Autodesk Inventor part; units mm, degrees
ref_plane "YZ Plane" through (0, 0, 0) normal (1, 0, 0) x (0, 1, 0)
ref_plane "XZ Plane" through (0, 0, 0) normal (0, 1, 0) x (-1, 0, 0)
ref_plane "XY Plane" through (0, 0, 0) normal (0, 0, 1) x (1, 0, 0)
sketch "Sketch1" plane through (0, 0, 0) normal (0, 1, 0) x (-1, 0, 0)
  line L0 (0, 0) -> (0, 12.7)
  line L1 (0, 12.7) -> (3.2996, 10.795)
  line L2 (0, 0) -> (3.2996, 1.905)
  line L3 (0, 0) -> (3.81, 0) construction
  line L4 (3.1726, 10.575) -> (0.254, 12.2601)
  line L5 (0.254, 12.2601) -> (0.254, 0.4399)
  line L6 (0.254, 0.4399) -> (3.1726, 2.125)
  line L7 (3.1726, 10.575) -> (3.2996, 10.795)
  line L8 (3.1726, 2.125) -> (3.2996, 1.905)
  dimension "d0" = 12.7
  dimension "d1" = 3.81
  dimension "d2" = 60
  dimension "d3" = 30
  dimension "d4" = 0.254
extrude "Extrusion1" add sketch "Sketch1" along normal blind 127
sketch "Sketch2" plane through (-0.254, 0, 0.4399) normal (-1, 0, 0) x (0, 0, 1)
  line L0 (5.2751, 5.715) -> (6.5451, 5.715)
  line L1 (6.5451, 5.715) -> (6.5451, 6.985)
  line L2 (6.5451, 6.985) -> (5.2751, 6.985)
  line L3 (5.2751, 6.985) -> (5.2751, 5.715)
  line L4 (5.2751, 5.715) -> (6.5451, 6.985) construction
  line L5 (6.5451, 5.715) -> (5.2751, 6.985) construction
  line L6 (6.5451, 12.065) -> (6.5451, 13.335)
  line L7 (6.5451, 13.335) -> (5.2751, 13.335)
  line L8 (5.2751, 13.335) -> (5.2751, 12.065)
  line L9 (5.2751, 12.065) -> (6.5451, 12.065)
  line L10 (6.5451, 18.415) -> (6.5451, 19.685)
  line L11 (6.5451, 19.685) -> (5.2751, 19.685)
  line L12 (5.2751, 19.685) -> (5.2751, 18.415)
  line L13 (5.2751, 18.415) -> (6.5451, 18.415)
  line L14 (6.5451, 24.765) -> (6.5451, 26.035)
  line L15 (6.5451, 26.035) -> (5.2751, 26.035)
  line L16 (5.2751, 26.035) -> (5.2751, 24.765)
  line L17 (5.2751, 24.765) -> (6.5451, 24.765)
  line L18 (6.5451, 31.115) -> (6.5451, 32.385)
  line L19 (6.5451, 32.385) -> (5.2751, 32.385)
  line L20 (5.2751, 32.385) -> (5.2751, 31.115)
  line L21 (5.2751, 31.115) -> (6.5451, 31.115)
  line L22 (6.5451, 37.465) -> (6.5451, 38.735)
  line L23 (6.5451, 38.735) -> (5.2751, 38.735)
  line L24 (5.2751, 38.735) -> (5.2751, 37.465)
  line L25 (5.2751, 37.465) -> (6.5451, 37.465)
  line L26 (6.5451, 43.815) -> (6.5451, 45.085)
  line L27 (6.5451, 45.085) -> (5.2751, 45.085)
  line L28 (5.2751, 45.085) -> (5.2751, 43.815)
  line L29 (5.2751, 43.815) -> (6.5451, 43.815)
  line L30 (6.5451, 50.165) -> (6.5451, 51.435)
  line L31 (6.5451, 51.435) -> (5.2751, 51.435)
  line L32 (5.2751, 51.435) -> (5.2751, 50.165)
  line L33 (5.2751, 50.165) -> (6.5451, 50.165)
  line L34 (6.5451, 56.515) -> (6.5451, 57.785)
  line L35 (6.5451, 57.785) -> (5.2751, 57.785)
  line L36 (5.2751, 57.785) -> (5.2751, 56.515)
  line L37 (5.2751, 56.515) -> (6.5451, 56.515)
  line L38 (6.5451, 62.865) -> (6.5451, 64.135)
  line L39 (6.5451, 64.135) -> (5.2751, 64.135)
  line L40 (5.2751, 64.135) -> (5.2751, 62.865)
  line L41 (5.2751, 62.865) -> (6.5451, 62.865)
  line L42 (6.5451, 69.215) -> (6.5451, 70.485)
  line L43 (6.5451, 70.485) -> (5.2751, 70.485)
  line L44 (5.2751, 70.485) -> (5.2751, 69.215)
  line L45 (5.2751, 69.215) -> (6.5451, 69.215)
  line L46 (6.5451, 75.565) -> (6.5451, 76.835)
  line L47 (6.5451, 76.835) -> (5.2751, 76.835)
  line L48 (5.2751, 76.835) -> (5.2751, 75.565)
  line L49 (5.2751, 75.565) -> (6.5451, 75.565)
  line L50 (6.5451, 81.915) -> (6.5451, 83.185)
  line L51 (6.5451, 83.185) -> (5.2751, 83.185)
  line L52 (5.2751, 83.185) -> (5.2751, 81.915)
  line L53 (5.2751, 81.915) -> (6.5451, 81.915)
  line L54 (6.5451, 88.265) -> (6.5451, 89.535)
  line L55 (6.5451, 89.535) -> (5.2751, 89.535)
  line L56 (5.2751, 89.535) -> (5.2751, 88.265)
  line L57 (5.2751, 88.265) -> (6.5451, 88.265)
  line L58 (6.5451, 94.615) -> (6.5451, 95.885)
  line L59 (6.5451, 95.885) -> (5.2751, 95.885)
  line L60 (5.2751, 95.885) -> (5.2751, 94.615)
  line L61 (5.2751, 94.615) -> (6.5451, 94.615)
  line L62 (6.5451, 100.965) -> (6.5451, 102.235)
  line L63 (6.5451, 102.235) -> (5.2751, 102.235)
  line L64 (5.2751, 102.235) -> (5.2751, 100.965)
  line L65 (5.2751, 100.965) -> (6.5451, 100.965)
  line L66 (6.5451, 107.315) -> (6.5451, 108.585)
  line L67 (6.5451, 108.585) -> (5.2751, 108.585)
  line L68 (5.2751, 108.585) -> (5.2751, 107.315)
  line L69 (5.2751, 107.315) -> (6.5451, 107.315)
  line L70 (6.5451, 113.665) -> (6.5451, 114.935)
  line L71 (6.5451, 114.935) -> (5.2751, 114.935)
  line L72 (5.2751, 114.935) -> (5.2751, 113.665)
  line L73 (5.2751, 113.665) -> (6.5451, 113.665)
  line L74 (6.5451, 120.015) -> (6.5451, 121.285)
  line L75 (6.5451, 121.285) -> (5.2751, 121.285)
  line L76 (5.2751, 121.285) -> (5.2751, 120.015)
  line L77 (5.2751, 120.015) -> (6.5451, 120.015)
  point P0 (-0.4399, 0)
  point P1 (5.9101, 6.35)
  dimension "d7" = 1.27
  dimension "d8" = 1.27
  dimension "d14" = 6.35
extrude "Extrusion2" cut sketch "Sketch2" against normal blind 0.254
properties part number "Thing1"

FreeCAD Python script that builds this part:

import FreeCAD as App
import Part
import Sketcher

V = App.Vector
Q = App.Units.Quantity

doc = App.newDocument("Part")
body = doc.addObject("PartDesign::Body", "Body")

# Sketch on XZ plane
sketch1 = doc.addObject("Sketcher::SketchObject", "Sketch")
body.addObject(sketch1)
sketch1.AttachmentSupport = (doc.XZ_Plane, [""])
sketch1.MapMode = "FlatFace"
sketch1.addGeometry([
    Part.LineSegment(V(0, 12.7, 0), V(0, 0, 0)),  # 0
    Part.LineSegment(V(0, 0, 0), V(-3.3, 1.91, 0)),  # 1
    Part.LineSegment(V(-3.3, 1.91, 0), V(-3.17, 2.12, 0)),  # 2
    Part.LineSegment(V(-3.17, 2.12, 0), V(-0.25, 0.44, 0)),  # 3
    Part.LineSegment(V(-0.25, 0.44, 0), V(-0.25, 12.26, 0)),  # 4
    Part.LineSegment(V(-0.25, 12.26, 0), V(-3.17, 10.57, 0)),  # 5
    Part.LineSegment(V(-3.17, 10.57, 0), V(-3.3, 10.79, 0)),  # 6
    Part.LineSegment(V(-3.3, 10.79, 0), V(0, 12.7, 0)),  # 7
], False)
sketch1.addConstraint([
    Sketcher.Constraint("Coincident", 0, 2, 1, 1),
    Sketcher.Constraint("Coincident", 1, 2, 2, 1),
    Sketcher.Constraint("Coincident", 2, 2, 3, 1),
    Sketcher.Constraint("Coincident", 3, 2, 4, 1),
    Sketcher.Constraint("Coincident", 4, 2, 5, 1),
    Sketcher.Constraint("Coincident", 5, 2, 6, 1),
    Sketcher.Constraint("Coincident", 6, 2, 7, 1),
    Sketcher.Constraint("Coincident", 7, 2, 0, 1),
    Sketcher.Constraint("Vertical", 0),
    Sketcher.Constraint("Vertical", 4),
    Sketcher.Constraint("Coincident", 0, 2, -1, 1),
    Sketcher.Constraint("Perpendicular", 1, 2),
    Sketcher.Constraint("Perpendicular", 2, 3),
    Sketcher.Constraint("Perpendicular", 5, 6),
    Sketcher.Constraint("Perpendicular", 6, 7),
    Sketcher.Constraint("Vertical", 2, 2, 5, 2),
    Sketcher.Constraint("Vertical", 1, 2, 6, 2),
    Sketcher.Constraint("Equal", 3, 5),
    Sketcher.Constraint("DistanceY", 0, 2, 0, 1, Q("0.5 in")),
    Sketcher.Constraint("Angle", 7, Q("29.9997 deg")),
    Sketcher.Constraint("Distance", 1, Q("0.15 in")),
    Sketcher.Constraint("Distance", 2, Q("0.01 in")),
    Sketcher.Constraint("DistanceX", 3, 2, -1, 1, Q("0.01 in")),
])
pad1 = doc.addObject("PartDesign::Pad", "Pad")
body.addObject(pad1)
pad1.Profile = sketch1
pad1.Length = Q("5 in")
pad1.Reversed = True

# Sketch on YZ plane
sketch2 = doc.addObject("Sketcher::SketchObject", "Sketch001")
body.addObject(sketch2)
sketch2.AttachmentSupport = (doc.YZ_Plane, [""])
sketch2.MapMode = "FlatFace"
sketch2.AttachmentOffset = App.Placement(V(0, 0, -0.01 * 25.4), App.Rotation())
sketch2.addGeometry([
    Part.LineSegment(V(7, 5.7, 0), V(5.7, 5.7, 0)),  # 0
    Part.LineSegment(V(5.7, 5.7, 0), V(5.7, 7, 0)),  # 1
    Part.LineSegment(V(5.7, 7, 0), V(7, 7, 0)),  # 2
    Part.LineSegment(V(7, 7, 0), V(7, 5.7, 0)),  # 3
    Part.LineSegment(V(12.1, 5.7, 0), V(12.1, 7, 0)),  # 4
    Part.LineSegment(V(12.1, 7, 0), V(13.3, 7, 0)),  # 5
    Part.LineSegment(V(13.3, 7, 0), V(13.3, 5.7, 0)),  # 6
    Part.LineSegment(V(13.3, 5.7, 0), V(12.1, 5.7, 0)),  # 7
    Part.LineSegment(V(18.4, 5.7, 0), V(18.4, 7, 0)),  # 8
    Part.LineSegment(V(18.4, 7, 0), V(19.7, 7, 0)),  # 9
    Part.LineSegment(V(19.7, 7, 0), V(19.7, 5.7, 0)),  # 10
    Part.LineSegment(V(19.7, 5.7, 0), V(18.4, 5.7, 0)),  # 11
    Part.LineSegment(V(24.8, 5.7, 0), V(24.8, 7, 0)),  # 12
    Part.LineSegment(V(24.8, 7, 0), V(26, 7, 0)),  # 13
    Part.LineSegment(V(26, 7, 0), V(26, 5.7, 0)),  # 14
    Part.LineSegment(V(26, 5.7, 0), V(24.8, 5.7, 0)),  # 15
    Part.LineSegment(V(31.1, 5.7, 0), V(31.1, 7, 0)),  # 16
    Part.LineSegment(V(31.1, 7, 0), V(32.4, 7, 0)),  # 17
    Part.LineSegment(V(32.4, 7, 0), V(32.4, 5.7, 0)),  # 18
    Part.LineSegment(V(32.4, 5.7, 0), V(31.1, 5.7, 0)),  # 19
    Part.LineSegment(V(37.5, 5.7, 0), V(37.5, 7, 0)),  # 20
    Part.LineSegment(V(37.5, 7, 0), V(38.7, 7, 0)),  # 21
    Part.LineSegment(V(38.7, 7, 0), V(38.7, 5.7, 0)),  # 22
    Part.LineSegment(V(38.7, 5.7, 0), V(37.5, 5.7, 0)),  # 23
    Part.LineSegment(V(43.8, 5.7, 0), V(43.8, 7, 0)),  # 24
    Part.LineSegment(V(43.8, 7, 0), V(45.1, 7, 0)),  # 25
    Part.LineSegment(V(45.1, 7, 0), V(45.1, 5.7, 0)),  # 26
    Part.LineSegment(V(45.1, 5.7, 0), V(43.8, 5.7, 0)),  # 27
    Part.LineSegment(V(50.2, 5.7, 0), V(50.2, 7, 0)),  # 28
    Part.LineSegment(V(50.2, 7, 0), V(51.4, 7, 0)),  # 29
    Part.LineSegment(V(51.4, 7, 0), V(51.4, 5.7, 0)),  # 30
    Part.LineSegment(V(51.4, 5.7, 0), V(50.2, 5.7, 0)),  # 31
    Part.LineSegment(V(56.5, 5.7, 0), V(56.5, 7, 0)),  # 32
    Part.LineSegment(V(56.5, 7, 0), V(57.8, 7, 0)),  # 33
    Part.LineSegment(V(57.8, 7, 0), V(57.8, 5.7, 0)),  # 34
    Part.LineSegment(V(57.8, 5.7, 0), V(56.5, 5.7, 0)),  # 35
    Part.LineSegment(V(62.9, 5.7, 0), V(62.9, 7, 0)),  # 36
    Part.LineSegment(V(62.9, 7, 0), V(64.1, 7, 0)),  # 37
    Part.LineSegment(V(64.1, 7, 0), V(64.1, 5.7, 0)),  # 38
    Part.LineSegment(V(64.1, 5.7, 0), V(62.9, 5.7, 0)),  # 39
    Part.LineSegment(V(69.2, 5.7, 0), V(69.2, 7, 0)),  # 40
    Part.LineSegment(V(69.2, 7, 0), V(70.5, 7, 0)),  # 41
    Part.LineSegment(V(70.5, 7, 0), V(70.5, 5.7, 0)),  # 42
    Part.LineSegment(V(70.5, 5.7, 0), V(69.2, 5.7, 0)),  # 43
    Part.LineSegment(V(75.6, 5.7, 0), V(75.6, 7, 0)),  # 44
    Part.LineSegment(V(75.6, 7, 0), V(76.8, 7, 0)),  # 45
    Part.LineSegment(V(76.8, 7, 0), V(76.8, 5.7, 0)),  # 46
    Part.LineSegment(V(76.8, 5.7, 0), V(75.6, 5.7, 0)),  # 47
    Part.LineSegment(V(81.9, 5.7, 0), V(81.9, 7, 0)),  # 48
    Part.LineSegment(V(81.9, 7, 0), V(83.2, 7, 0)),  # 49
    Part.LineSegment(V(83.2, 7, 0), V(83.2, 5.7, 0)),  # 50
    Part.LineSegment(V(83.2, 5.7, 0), V(81.9, 5.7, 0)),  # 51
    Part.LineSegment(V(88.3, 5.7, 0), V(88.3, 7, 0)),  # 52
    Part.LineSegment(V(88.3, 7, 0), V(89.5, 7, 0)),  # 53
    Part.LineSegment(V(89.5, 7, 0), V(89.5, 5.7, 0)),  # 54
    Part.LineSegment(V(89.5, 5.7, 0), V(88.3, 5.7, 0)),  # 55
    Part.LineSegment(V(94.6, 5.7, 0), V(94.6, 7, 0)),  # 56
    Part.LineSegment(V(94.6, 7, 0), V(95.9, 7, 0)),  # 57
    Part.LineSegment(V(95.9, 7, 0), V(95.9, 5.7, 0)),  # 58
    Part.LineSegment(V(95.9, 5.7, 0), V(94.6, 5.7, 0)),  # 59
    Part.LineSegment(V(101, 5.7, 0), V(101, 7, 0)),  # 60
    Part.LineSegment(V(101, 7, 0), V(102.2, 7, 0)),  # 61
    Part.LineSegment(V(102.2, 7, 0), V(102.2, 5.7, 0)),  # 62
    Part.LineSegment(V(102.2, 5.7, 0), V(101, 5.7, 0)),  # 63
    Part.LineSegment(V(107.3, 5.7, 0), V(107.3, 7, 0)),  # 64
    Part.LineSegment(V(107.3, 7, 0), V(108.6, 7, 0)),  # 65
    Part.LineSegment(V(108.6, 7, 0), V(108.6, 5.7, 0)),  # 66
    Part.LineSegment(V(108.6, 5.7, 0), V(107.3, 5.7, 0)),  # 67
    Part.LineSegment(V(113.7, 5.7, 0), V(113.7, 7, 0)),  # 68
    Part.LineSegment(V(113.7, 7, 0), V(114.9, 7, 0)),  # 69
    Part.LineSegment(V(114.9, 7, 0), V(114.9, 5.7, 0)),  # 70
    Part.LineSegment(V(114.9, 5.7, 0), V(113.7, 5.7, 0)),  # 71
    Part.LineSegment(V(120, 5.7, 0), V(120, 7, 0)),  # 72
    Part.LineSegment(V(120, 7, 0), V(121.3, 7, 0)),  # 73
    Part.LineSegment(V(121.3, 7, 0), V(121.3, 5.7, 0)),  # 74
    Part.LineSegment(V(121.3, 5.7, 0), V(120, 5.7, 0)),  # 75
], False)
sketch2.addConstraint([
    Sketcher.Constraint("Coincident", 0, 2, 1, 1),
    Sketcher.Constraint("Coincident", 1, 2, 2, 1),
    Sketcher.Constraint("Coincident", 2, 2, 3, 1),
    Sketcher.Constraint("Coincident", 3, 2, 0, 1),
    Sketcher.Constraint("Coincident", 4, 2, 5, 1),
    Sketcher.Constraint("Coincident", 5, 2, 6, 1),
    Sketcher.Constraint("Coincident", 6, 2, 7, 1),
    Sketcher.Constraint("Coincident", 7, 2, 4, 1),
    Sketcher.Constraint("Coincident", 8, 2, 9, 1),
    Sketcher.Constraint("Coincident", 9, 2, 10, 1),
    Sketcher.Constraint("Coincident", 10, 2, 11, 1),
    Sketcher.Constraint("Coincident", 11, 2, 8, 1),
    Sketcher.Constraint("Coincident", 12, 2, 13, 1),
    Sketcher.Constraint("Coincident", 13, 2, 14, 1),
    Sketcher.Constraint("Coincident", 14, 2, 15, 1),
    Sketcher.Constraint("Coincident", 15, 2, 12, 1),
    Sketcher.Constraint("Coincident", 16, 2, 17, 1),
    Sketcher.Constraint("Coincident", 17, 2, 18, 1),
    Sketcher.Constraint("Coincident", 18, 2, 19, 1),
    Sketcher.Constraint("Coincident", 19, 2, 16, 1),
    Sketcher.Constraint("Coincident", 20, 2, 21, 1),
    Sketcher.Constraint("Coincident", 21, 2, 22, 1),
    Sketcher.Constraint("Coincident", 22, 2, 23, 1),
    Sketcher.Constraint("Coincident", 23, 2, 20, 1),
    Sketcher.Constraint("Coincident", 24, 2, 25, 1),
    Sketcher.Constraint("Coincident", 25, 2, 26, 1),
    Sketcher.Constraint("Coincident", 26, 2, 27, 1),
    Sketcher.Constraint("Coincident", 27, 2, 24, 1),
    Sketcher.Constraint("Coincident", 28, 2, 29, 1),
    Sketcher.Constraint("Coincident", 29, 2, 30, 1),
    Sketcher.Constraint("Coincident", 30, 2, 31, 1),
    Sketcher.Constraint("Coincident", 31, 2, 28, 1),
    Sketcher.Constraint("Coincident", 32, 2, 33, 1),
    Sketcher.Constraint("Coincident", 33, 2, 34, 1),
    Sketcher.Constraint("Coincident", 34, 2, 35, 1),
    Sketcher.Constraint("Coincident", 35, 2, 32, 1),
    Sketcher.Constraint("Coincident", 36, 2, 37, 1),
    Sketcher.Constraint("Coincident", 37, 2, 38, 1),
    Sketcher.Constraint("Coincident", 38, 2, 39, 1),
    Sketcher.Constraint("Coincident", 39, 2, 36, 1),
    Sketcher.Constraint("Coincident", 40, 2, 41, 1),
    Sketcher.Constraint("Coincident", 41, 2, 42, 1),
    Sketcher.Constraint("Coincident", 42, 2, 43, 1),
    Sketcher.Constraint("Coincident", 43, 2, 40, 1),
    Sketcher.Constraint("Coincident", 44, 2, 45, 1),
    Sketcher.Constraint("Coincident", 45, 2, 46, 1),
    Sketcher.Constraint("Coincident", 46, 2, 47, 1),
    Sketcher.Constraint("Coincident", 47, 2, 44, 1),
    Sketcher.Constraint("Coincident", 48, 2, 49, 1),
    Sketcher.Constraint("Coincident", 49, 2, 50, 1),
    Sketcher.Constraint("Coincident", 50, 2, 51, 1),
    Sketcher.Constraint("Coincident", 51, 2, 48, 1),
    Sketcher.Constraint("Coincident", 52, 2, 53, 1),
    Sketcher.Constraint("Coincident", 53, 2, 54, 1),
    Sketcher.Constraint("Coincident", 54, 2, 55, 1),
    Sketcher.Constraint("Coincident", 55, 2, 52, 1),
    Sketcher.Constraint("Coincident", 56, 2, 57, 1),
    Sketcher.Constraint("Coincident", 57, 2, 58, 1),
    Sketcher.Constraint("Coincident", 58, 2, 59, 1),
    Sketcher.Constraint("Coincident", 59, 2, 56, 1),
    Sketcher.Constraint("Coincident", 60, 2, 61, 1),
    Sketcher.Constraint("Coincident", 61, 2, 62, 1),
    Sketcher.Constraint("Coincident", 62, 2, 63, 1),
    Sketcher.Constraint("Coincident", 63, 2, 60, 1),
    Sketcher.Constraint("Coincident", 64, 2, 65, 1),
    Sketcher.Constraint("Coincident", 65, 2, 66, 1),
    Sketcher.Constraint("Coincident", 66, 2, 67, 1),
    Sketcher.Constraint("Coincident", 67, 2, 64, 1),
    Sketcher.Constraint("Coincident", 68, 2, 69, 1),
    Sketcher.Constraint("Coincident", 69, 2, 70, 1),
    Sketcher.Constraint("Coincident", 70, 2, 71, 1),
    Sketcher.Constraint("Coincident", 71, 2, 68, 1),
    Sketcher.Constraint("Coincident", 72, 2, 73, 1),
    Sketcher.Constraint("Coincident", 73, 2, 74, 1),
    Sketcher.Constraint("Coincident", 74, 2, 75, 1),
    Sketcher.Constraint("Coincident", 75, 2, 72, 1),
    Sketcher.Constraint("Horizontal", 0),
    Sketcher.Constraint("Vertical", 1),
    Sketcher.Constraint("Horizontal", 2),
    Sketcher.Constraint("Vertical", 3),
    Sketcher.Constraint("Vertical", 4),
    Sketcher.Constraint("Horizontal", 5),
    Sketcher.Constraint("Vertical", 6),
    Sketcher.Constraint("Horizontal", 7),
    Sketcher.Constraint("Vertical", 8),
    Sketcher.Constraint("Horizontal", 9),
    Sketcher.Constraint("Vertical", 10),
    Sketcher.Constraint("Horizontal", 11),
    Sketcher.Constraint("Vertical", 12),
    Sketcher.Constraint("Horizontal", 13),
    Sketcher.Constraint("Vertical", 14),
    Sketcher.Constraint("Horizontal", 15),
    Sketcher.Constraint("Vertical", 16),
    Sketcher.Constraint("Horizontal", 17),
    Sketcher.Constraint("Vertical", 18),
    Sketcher.Constraint("Horizontal", 19),
    Sketcher.Constraint("Vertical", 20),
    Sketcher.Constraint("Horizontal", 21),
    Sketcher.Constraint("Vertical", 22),
    Sketcher.Constraint("Horizontal", 23),
    Sketcher.Constraint("Vertical", 24),
    Sketcher.Constraint("Horizontal", 25),
    Sketcher.Constraint("Vertical", 26),
    Sketcher.Constraint("Horizontal", 27),
    Sketcher.Constraint("Vertical", 28),
    Sketcher.Constraint("Horizontal", 29),
    Sketcher.Constraint("Vertical", 30),
    Sketcher.Constraint("Horizontal", 31),
    Sketcher.Constraint("Vertical", 32),
    Sketcher.Constraint("Horizontal", 33),
    Sketcher.Constraint("Vertical", 34),
    Sketcher.Constraint("Horizontal", 35),
    Sketcher.Constraint("Vertical", 36),
    Sketcher.Constraint("Horizontal", 37),
    Sketcher.Constraint("Vertical", 38),
    Sketcher.Constraint("Horizontal", 39),
    Sketcher.Constraint("Vertical", 40),
    Sketcher.Constraint("Horizontal", 41),
    Sketcher.Constraint("Vertical", 42),
    Sketcher.Constraint("Horizontal", 43),
    Sketcher.Constraint("Vertical", 44),
    Sketcher.Constraint("Horizontal", 45),
    Sketcher.Constraint("Vertical", 46),
    Sketcher.Constraint("Horizontal", 47),
    Sketcher.Constraint("Vertical", 48),
    Sketcher.Constraint("Horizontal", 49),
    Sketcher.Constraint("Vertical", 50),
    Sketcher.Constraint("Horizontal", 51),
    Sketcher.Constraint("Vertical", 52),
    Sketcher.Constraint("Horizontal", 53),
    Sketcher.Constraint("Vertical", 54),
    Sketcher.Constraint("Horizontal", 55),
    Sketcher.Constraint("Vertical", 56),
    Sketcher.Constraint("Horizontal", 57),
    Sketcher.Constraint("Vertical", 58),
    Sketcher.Constraint("Horizontal", 59),
    Sketcher.Constraint("Vertical", 60),
    Sketcher.Constraint("Horizontal", 61),
    Sketcher.Constraint("Vertical", 62),
    Sketcher.Constraint("Horizontal", 63),
    Sketcher.Constraint("Vertical", 64),
    Sketcher.Constraint("Horizontal", 65),
    Sketcher.Constraint("Vertical", 66),
    Sketcher.Constraint("Horizontal", 67),
    Sketcher.Constraint("Vertical", 68),
    Sketcher.Constraint("Horizontal", 69),
    Sketcher.Constraint("Vertical", 70),
    Sketcher.Constraint("Horizontal", 71),
    Sketcher.Constraint("Vertical", 72),
    Sketcher.Constraint("Horizontal", 73),
    Sketcher.Constraint("Vertical", 74),
    Sketcher.Constraint("Horizontal", 75),
    Sketcher.Constraint("Horizontal", 2, 2, 4, 2),
    Sketcher.Constraint("Horizontal", 3, 2, 6, 2),
    Sketcher.Constraint("Horizontal", 5, 2, 8, 2),
    Sketcher.Constraint("Horizontal", 7, 2, 10, 2),
    Sketcher.Constraint("Horizontal", 9, 2, 12, 2),
    Sketcher.Constraint("Horizontal", 11, 2, 14, 2),
    Sketcher.Constraint("Horizontal", 13, 2, 16, 2),
    Sketcher.Constraint("Horizontal", 15, 2, 18, 2),
    Sketcher.Constraint("Horizontal", 17, 2, 20, 2),
    Sketcher.Constraint("Horizontal", 19, 2, 22, 2),
    Sketcher.Constraint("Horizontal", 21, 2, 24, 2),
    Sketcher.Constraint("Horizontal", 23, 2, 26, 2),
    Sketcher.Constraint("Horizontal", 25, 2, 28, 2),
    Sketcher.Constraint("Horizontal", 27, 2, 30, 2),
    Sketcher.Constraint("Horizontal", 29, 2, 32, 2),
    Sketcher.Constraint("Horizontal", 31, 2, 34, 2),
    Sketcher.Constraint("Horizontal", 33, 2, 36, 2),
    Sketcher.Constraint("Horizontal", 35, 2, 38, 2),
    Sketcher.Constraint("Horizontal", 37, 2, 40, 2),
    Sketcher.Constraint("Horizontal", 39, 2, 42, 2),
    Sketcher.Constraint("Horizontal", 41, 2, 44, 2),
    Sketcher.Constraint("Horizontal", 43, 2, 46, 2),
    Sketcher.Constraint("Horizontal", 45, 2, 48, 2),
    Sketcher.Constraint("Horizontal", 47, 2, 50, 2),
    Sketcher.Constraint("Horizontal", 49, 2, 52, 2),
    Sketcher.Constraint("Horizontal", 51, 2, 54, 2),
    Sketcher.Constraint("Horizontal", 53, 2, 56, 2),
    Sketcher.Constraint("Horizontal", 55, 2, 58, 2),
    Sketcher.Constraint("Horizontal", 57, 2, 60, 2),
    Sketcher.Constraint("Horizontal", 59, 2, 62, 2),
    Sketcher.Constraint("Horizontal", 61, 2, 64, 2),
    Sketcher.Constraint("Horizontal", 63, 2, 66, 2),
    Sketcher.Constraint("Horizontal", 65, 2, 68, 2),
    Sketcher.Constraint("Horizontal", 67, 2, 70, 2),
    Sketcher.Constraint("Horizontal", 69, 2, 72, 2),
    Sketcher.Constraint("Horizontal", 71, 2, 74, 2),
    Sketcher.Constraint("Equal", 2, 5),
    Sketcher.Constraint("Equal", 7, 9),
    Sketcher.Constraint("Equal", 11, 13),
    Sketcher.Constraint("Equal", 15, 17),
    Sketcher.Constraint("Equal", 19, 21),
    Sketcher.Constraint("Equal", 23, 25),
    Sketcher.Constraint("Equal", 27, 29),
    Sketcher.Constraint("Equal", 31, 33),
    Sketcher.Constraint("Equal", 35, 37),
    Sketcher.Constraint("Equal", 39, 41),
    Sketcher.Constraint("Equal", 43, 45),
    Sketcher.Constraint("Equal", 47, 49),
    Sketcher.Constraint("Equal", 51, 53),
    Sketcher.Constraint("Equal", 55, 57),
    Sketcher.Constraint("Equal", 59, 61),
    Sketcher.Constraint("Equal", 63, 65),
    Sketcher.Constraint("Equal", 67, 69),
    Sketcher.Constraint("Equal", 71, 73),
    Sketcher.Constraint("Equal", 75, 1),
    Sketcher.Constraint("DistanceX", 0, 2, 0, 1, Q("0.05 in")),
    Sketcher.Constraint("DistanceX", -1, 1, 0, 2, Q("0.225 in")),
    Sketcher.Constraint("DistanceY", -1, 1, 0, 2, Q("0.225 in")),
    Sketcher.Constraint("DistanceX", -1, 1, 4, 2, Q("0.475 in")),
    Sketcher.Constraint("DistanceX", -1, 1, 8, 2, Q("0.725 in")),
    Sketcher.Constraint("DistanceX", -1, 1, 12, 2, Q("0.975 in")),
    Sketcher.Constraint("DistanceX", -1, 1, 16, 2, Q("1.225 in")),
    Sketcher.Constraint("DistanceX", -1, 1, 20, 2, Q("1.475 in")),
    Sketcher.Constraint("DistanceX", -1, 1, 24, 2, Q("1.725 in")),
    Sketcher.Constraint("DistanceX", -1, 1, 28, 2, Q("1.975 in")),
    Sketcher.Constraint("DistanceX", -1, 1, 32, 2, Q("2.225 in")),
    Sketcher.Constraint("DistanceX", -1, 1, 36, 2, Q("2.475 in")),
    Sketcher.Constraint("DistanceX", -1, 1, 40, 2, Q("2.725 in")),
    Sketcher.Constraint("DistanceX", -1, 1, 44, 2, Q("2.975 in")),
    Sketcher.Constraint("DistanceX", -1, 1, 48, 2, Q("3.225 in")),
    Sketcher.Constraint("DistanceX", -1, 1, 52, 2, Q("3.475 in")),
    Sketcher.Constraint("DistanceX", -1, 1, 56, 2, Q("3.725 in")),
    Sketcher.Constraint("DistanceX", -1, 1, 60, 2, Q("3.975 in")),
    Sketcher.Constraint("DistanceX", -1, 1, 64, 2, Q("4.225 in")),
    Sketcher.Constraint("DistanceX", -1, 1, 68, 2, Q("4.475 in")),
    Sketcher.Constraint("DistanceX", -1, 1, 72, 2, Q("4.725 in")),
])
pocket1 = doc.addObject("PartDesign::Pocket", "Pocket")
body.addObject(pocket1)
pocket1.Profile = sketch2
pocket1.Length = Q("0.01 in")
pocket1.Reversed = True

doc.recompute()
